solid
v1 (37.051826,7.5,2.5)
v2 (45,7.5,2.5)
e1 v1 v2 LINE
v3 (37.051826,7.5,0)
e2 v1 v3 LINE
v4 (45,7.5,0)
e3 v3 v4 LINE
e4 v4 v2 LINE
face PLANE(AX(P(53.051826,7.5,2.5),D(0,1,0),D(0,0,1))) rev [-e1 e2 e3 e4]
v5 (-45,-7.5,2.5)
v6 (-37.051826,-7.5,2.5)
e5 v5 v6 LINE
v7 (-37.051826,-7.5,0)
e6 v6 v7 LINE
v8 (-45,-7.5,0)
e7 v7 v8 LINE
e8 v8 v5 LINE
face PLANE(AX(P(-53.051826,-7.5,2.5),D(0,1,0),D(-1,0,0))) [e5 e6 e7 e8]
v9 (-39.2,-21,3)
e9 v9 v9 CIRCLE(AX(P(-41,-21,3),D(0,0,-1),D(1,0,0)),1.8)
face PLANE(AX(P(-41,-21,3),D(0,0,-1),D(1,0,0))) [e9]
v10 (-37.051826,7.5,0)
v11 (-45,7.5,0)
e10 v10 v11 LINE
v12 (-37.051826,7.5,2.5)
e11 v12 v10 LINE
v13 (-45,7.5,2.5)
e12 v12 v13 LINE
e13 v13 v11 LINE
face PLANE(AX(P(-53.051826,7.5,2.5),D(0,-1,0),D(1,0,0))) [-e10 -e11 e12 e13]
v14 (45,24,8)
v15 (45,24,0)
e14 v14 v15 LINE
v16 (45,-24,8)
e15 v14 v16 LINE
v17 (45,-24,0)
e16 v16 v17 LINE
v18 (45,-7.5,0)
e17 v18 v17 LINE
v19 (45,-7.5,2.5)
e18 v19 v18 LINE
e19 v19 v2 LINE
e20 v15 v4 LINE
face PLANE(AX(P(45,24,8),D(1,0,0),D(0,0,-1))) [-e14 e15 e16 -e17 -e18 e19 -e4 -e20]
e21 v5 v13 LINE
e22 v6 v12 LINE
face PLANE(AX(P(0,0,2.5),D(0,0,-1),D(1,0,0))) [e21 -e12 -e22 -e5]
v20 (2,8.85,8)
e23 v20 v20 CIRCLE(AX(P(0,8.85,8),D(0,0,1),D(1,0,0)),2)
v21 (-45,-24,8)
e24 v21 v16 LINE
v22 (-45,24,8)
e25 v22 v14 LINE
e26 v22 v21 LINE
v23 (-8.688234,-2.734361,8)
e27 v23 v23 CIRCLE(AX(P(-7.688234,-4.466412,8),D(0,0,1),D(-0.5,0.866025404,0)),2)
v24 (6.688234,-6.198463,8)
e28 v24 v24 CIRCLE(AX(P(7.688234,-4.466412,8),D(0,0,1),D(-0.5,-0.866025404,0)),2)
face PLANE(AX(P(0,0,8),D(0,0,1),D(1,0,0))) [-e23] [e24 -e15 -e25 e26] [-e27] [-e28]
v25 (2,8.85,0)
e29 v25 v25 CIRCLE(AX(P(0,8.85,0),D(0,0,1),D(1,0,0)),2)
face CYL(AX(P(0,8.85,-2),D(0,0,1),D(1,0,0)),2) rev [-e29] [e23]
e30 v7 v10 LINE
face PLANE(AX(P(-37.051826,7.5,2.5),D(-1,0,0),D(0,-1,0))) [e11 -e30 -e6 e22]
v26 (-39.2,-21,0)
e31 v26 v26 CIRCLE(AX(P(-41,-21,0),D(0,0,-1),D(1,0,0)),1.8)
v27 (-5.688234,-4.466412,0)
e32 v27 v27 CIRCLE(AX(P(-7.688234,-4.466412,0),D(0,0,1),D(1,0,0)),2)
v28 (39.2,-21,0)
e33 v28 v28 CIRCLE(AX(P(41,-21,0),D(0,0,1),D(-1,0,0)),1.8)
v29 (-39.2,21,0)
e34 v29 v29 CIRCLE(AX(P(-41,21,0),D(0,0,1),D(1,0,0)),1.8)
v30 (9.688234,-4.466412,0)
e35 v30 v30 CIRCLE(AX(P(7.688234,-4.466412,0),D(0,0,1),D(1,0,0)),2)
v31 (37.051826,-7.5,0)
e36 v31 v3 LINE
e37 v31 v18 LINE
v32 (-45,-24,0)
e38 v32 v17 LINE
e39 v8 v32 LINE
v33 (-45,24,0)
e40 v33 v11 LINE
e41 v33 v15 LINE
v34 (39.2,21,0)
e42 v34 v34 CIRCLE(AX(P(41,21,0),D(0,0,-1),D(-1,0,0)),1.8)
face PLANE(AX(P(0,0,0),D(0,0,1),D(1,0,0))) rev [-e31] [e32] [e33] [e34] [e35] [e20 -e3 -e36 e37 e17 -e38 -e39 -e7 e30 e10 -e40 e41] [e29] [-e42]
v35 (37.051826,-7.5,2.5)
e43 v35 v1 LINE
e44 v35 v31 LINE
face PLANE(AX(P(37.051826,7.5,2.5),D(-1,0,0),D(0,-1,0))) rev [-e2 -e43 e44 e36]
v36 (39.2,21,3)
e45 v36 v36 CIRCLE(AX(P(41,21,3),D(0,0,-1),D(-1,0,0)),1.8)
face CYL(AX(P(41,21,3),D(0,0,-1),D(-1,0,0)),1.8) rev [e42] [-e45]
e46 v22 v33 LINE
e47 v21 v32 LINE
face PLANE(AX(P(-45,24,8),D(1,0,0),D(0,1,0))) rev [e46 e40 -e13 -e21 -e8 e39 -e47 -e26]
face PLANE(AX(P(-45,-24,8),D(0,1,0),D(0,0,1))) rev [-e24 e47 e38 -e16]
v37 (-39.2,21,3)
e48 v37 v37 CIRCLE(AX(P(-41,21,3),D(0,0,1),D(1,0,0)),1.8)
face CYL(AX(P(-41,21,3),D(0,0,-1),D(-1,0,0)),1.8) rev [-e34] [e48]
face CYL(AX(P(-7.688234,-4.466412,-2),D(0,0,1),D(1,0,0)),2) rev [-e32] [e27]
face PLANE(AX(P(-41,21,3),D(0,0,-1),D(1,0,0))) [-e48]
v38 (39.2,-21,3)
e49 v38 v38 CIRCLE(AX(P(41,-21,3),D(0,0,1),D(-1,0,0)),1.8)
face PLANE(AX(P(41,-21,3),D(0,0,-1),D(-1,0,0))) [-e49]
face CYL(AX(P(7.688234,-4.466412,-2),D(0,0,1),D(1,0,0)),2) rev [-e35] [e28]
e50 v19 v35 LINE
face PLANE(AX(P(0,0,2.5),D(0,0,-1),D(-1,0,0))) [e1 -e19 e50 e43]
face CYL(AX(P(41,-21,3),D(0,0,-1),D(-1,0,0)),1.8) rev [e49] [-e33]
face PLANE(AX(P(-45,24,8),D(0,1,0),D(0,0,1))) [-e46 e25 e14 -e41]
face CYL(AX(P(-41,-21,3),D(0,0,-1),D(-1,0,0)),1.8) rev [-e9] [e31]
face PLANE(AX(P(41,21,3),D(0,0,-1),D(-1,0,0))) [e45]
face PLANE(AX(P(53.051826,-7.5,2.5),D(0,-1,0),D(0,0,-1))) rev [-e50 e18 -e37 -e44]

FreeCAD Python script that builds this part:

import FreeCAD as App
import Part
import Sketcher
Q = App.Units.Quantity

doc = App.newDocument("Part")
params = doc.addObject("Spreadsheet::Sheet", "Params")
for row, (alias, value) in enumerate([
    ("sketch1_width", "90 mm"),
    ("sketch1_height", "48 mm"),
    ("pad1_length", "8 mm"),
    ("sketch2_diameter", "3.6 mm"),
    ("pocket1_length", "3 mm"),
    ("sketch3_diameter", "3.6 mm"),
    ("pocket2_length", "3 mm"),
    ("sketch4_width", "16 mm"),
    ("sketch4_height", "15 mm"),
    ("pocket3_length", "2.5 mm"),
    ("sketch5_diameter", "4 mm"),
    ("pocket4_length", "10 mm"),
], start=1):
    params.set(f"A{row}", alias)
    params.set(f"B{row}", "=" + value)
    params.setAlias(f"B{row}", alias)

body = doc.addObject("PartDesign::Body", "Body")

# Sketch on XY plane
sketch1 = body.newObject("Sketcher::SketchObject", "Sketch")
sketch1.AttachmentSupport = (doc.getObject("XY_Plane"), [""])
sketch1.MapMode = "FlatFace"
sketch1.addGeometry([
    Part.LineSegment(App.Vector(-45, 24, 0), App.Vector(-45, -24, 0)),
    Part.LineSegment(App.Vector(-45, -24, 0), App.Vector(45, -24, 0)),
    Part.LineSegment(App.Vector(45, -24, 0), App.Vector(45, 24, 0)),
    Part.LineSegment(App.Vector(45, 24, 0), App.Vector(-45, 24, 0)),
], False)
sketch1.addConstraint([
    Sketcher.Constraint("Coincident", 0, 2, 1, 1),
    Sketcher.Constraint("Coincident", 1, 2, 2, 1),
    Sketcher.Constraint("Coincident", 2, 2, 3, 1),
    Sketcher.Constraint("Coincident", 3, 2, 0, 1),
    Sketcher.Constraint("Vertical", 0),
    Sketcher.Constraint("Horizontal", 1),
    Sketcher.Constraint("Vertical", 2),
    Sketcher.Constraint("Horizontal", 3),
    Sketcher.Constraint("Symmetric", 0, 2, 2, 2, -1, 1),
    Sketcher.Constraint("DistanceX", 1, 1, 1, 2, Q("90 mm")),
    Sketcher.Constraint("DistanceY", 0, 2, 0, 1, Q("48 mm")),
])
sketch1.setExpression("Constraints[9]", "Params.sketch1_width")
sketch1.setExpression("Constraints[10]", "Params.sketch1_height")
pad1 = body.newObject("PartDesign::Pad", "Pad")
pad1.Profile = sketch1
pad1.setExpression("Length", "Params.pad1_length")

# Sketch on XY plane
sketch2 = body.newObject("Sketcher::SketchObject", "Sketch001")
sketch2.AttachmentSupport = (doc.getObject("XY_Plane"), [""])
sketch2.MapMode = "FlatFace"
sketch2.addGeometry(Part.Circle(App.Vector(41, 21, 0), App.Vector(0, 0, 1), 1.8), False)
sketch2.addConstraint([
    Sketcher.Constraint("Diameter", 0, Q("3.6 mm")),
    Sketcher.Constraint("DistanceX", -1, 1, 0, 3, Q("41 mm")),
    Sketcher.Constraint("DistanceY", -1, 1, 0, 3, Q("21 mm")),
])
sketch2.setExpression("Constraints[0]", "Params.sketch2_diameter")
pocket1 = body.newObject("PartDesign::Pocket", "Pocket")
pocket1.Profile = sketch2
pocket1.setExpression("Length", "Params.pocket1_length")
pocket1.Reversed = True
doc.recompute()

mirrored = body.newObject("PartDesign::Mirrored", "Mirrored")
mirrored.Originals = [pocket1]
mirrored.MirrorPlane = (doc.getObject("XZ_Plane"), [""])
body.Tip = mirrored
doc.recompute()

mirrored2 = body.newObject("PartDesign::Mirrored", "Mirrored001")
mirrored2.Originals = [pocket1]
mirrored2.MirrorPlane = (doc.getObject("YZ_Plane"), [""])
body.Tip = mirrored2

# Sketch on XY plane
sketch3 = body.newObject("Sketcher::SketchObject", "Sketch002")
sketch3.AttachmentSupport = (doc.getObject("XY_Plane"), [""])
sketch3.MapMode = "FlatFace"
sketch3.addGeometry(Part.Circle(App.Vector(-41, -21, 0), App.Vector(0, 0, 1), 1.8), False)
sketch3.addConstraint([
    Sketcher.Constraint("Diameter", 0, Q("3.6 mm")),
    Sketcher.Constraint("DistanceX", 0, 3, -1, 1, Q("41 mm")),
    Sketcher.Constraint("DistanceY", 0, 3, -1, 1, Q("21 mm")),
])
sketch3.setExpression("Constraints[0]", "Params.sketch3_diameter")
pocket2 = body.newObject("PartDesign::Pocket", "Pocket001")
pocket2.Profile = sketch3
pocket2.setExpression("Length", "Params.pocket2_length")
pocket2.Reversed = True

# Sketch on XY plane
sketch4 = body.newObject("Sketcher::SketchObject", "Sketch003")
sketch4.AttachmentSupport = (doc.getObject("XY_Plane"), [""])
sketch4.MapMode = "FlatFace"
sketch4.addGeometry([
    Part.LineSegment(App.Vector(53, 8, 0), App.Vector(53, -8, 0)),
    Part.LineSegment(App.Vector(53, -8, 0), App.Vector(37, -8, 0)),
    Part.LineSegment(App.Vector(37, -8, 0), App.Vector(37, 8, 0)),
    Part.LineSegment(App.Vector(37, 8, 0), App.Vector(53, 8, 0)),
], False)
sketch4.addConstraint([
    Sketcher.Constraint("Coincident", 0, 2, 1, 1),
    Sketcher.Constraint("Coincident", 1, 2, 2, 1),
    Sketcher.Constraint("Coincident", 2, 2, 3, 1),
    Sketcher.Constraint("Coincident", 3, 2, 0, 1),
    Sketcher.Constraint("Vertical", 0),
    Sketcher.Constraint("Horizontal", 1),
    Sketcher.Constraint("Vertical", 2),
    Sketcher.Constraint("Horizontal", 3),
    Sketcher.Constraint("DistanceX", 1, 2, 1, 1, Q("16 mm")),
    Sketcher.Constraint("DistanceY", 0, 2, 0, 1, Q("15 mm")),
    Sketcher.Constraint("DistanceY", 0, 2, -1, 1, Q("7.5 mm")),
    Sketcher.Constraint("DistanceX", -1, 1, 0, 2, Q("53.051826 mm")),
])
sketch4.setExpression("Constraints[8]", "Params.sketch4_width")
sketch4.setExpression("Constraints[9]", "Params.sketch4_height")
pocket3 = body.newObject("PartDesign::Pocket", "Pocket002")
pocket3.Profile = sketch4
pocket3.setExpression("Length", "Params.pocket3_length")
pocket3.Reversed = True
doc.recompute()

mirrored3 = body.newObject("PartDesign::Mirrored", "Mirrored002")
mirrored3.Originals = [pocket3]
mirrored3.MirrorPlane = (doc.getObject("YZ_Plane"), [""])
body.Tip = mirrored3

# Sketch on XY plane
sketch5 = body.newObject("Sketcher::SketchObject", "Sketch004")
sketch5.AttachmentSupport = (doc.getObject("XY_Plane"), [""])
sketch5.MapMode = "FlatFace"
sketch5.AttachmentOffset = App.Placement(App.Vector(0, 0, 8), App.Rotation())
sketch5.addGeometry(Part.Circle(App.Vector(0, 8.8, 0), App.Vector(0, 0, 1), 2), False)
sketch5.addConstraint([
    Sketcher.Constraint("PointOnObject", 0, 3, -2),
    Sketcher.Constraint("Diameter", 0, Q("4 mm")),
    Sketcher.Constraint("DistanceY", -1, 1, 0, 3, Q("8.85 mm")),
])
sketch5.setExpression("Constraints[1]", "Params.sketch5_diameter")
pocket4 = body.newObject("PartDesign::Pocket", "Pocket003")
pocket4.Profile = sketch5
pocket4.setExpression("Length", "Params.pocket4_length")
doc.recompute()

datumline = body.newObject("PartDesign::Line", "DatumLine")
datumline.Placement = App.Placement(App.Vector(0, -0.027608, 0), App.Rotation(App.Vector(0, 0, 1), App.Vector(0, 0, 1)))
polarpattern = body.newObject("PartDesign::PolarPattern", "PolarPattern")
polarpattern.Originals = [pocket4]
polarpattern.Axis = (datumline, [""])
polarpattern.Angle = 360
polarpattern.Occurrences = 3
body.Tip = polarpattern

doc.recompute()
